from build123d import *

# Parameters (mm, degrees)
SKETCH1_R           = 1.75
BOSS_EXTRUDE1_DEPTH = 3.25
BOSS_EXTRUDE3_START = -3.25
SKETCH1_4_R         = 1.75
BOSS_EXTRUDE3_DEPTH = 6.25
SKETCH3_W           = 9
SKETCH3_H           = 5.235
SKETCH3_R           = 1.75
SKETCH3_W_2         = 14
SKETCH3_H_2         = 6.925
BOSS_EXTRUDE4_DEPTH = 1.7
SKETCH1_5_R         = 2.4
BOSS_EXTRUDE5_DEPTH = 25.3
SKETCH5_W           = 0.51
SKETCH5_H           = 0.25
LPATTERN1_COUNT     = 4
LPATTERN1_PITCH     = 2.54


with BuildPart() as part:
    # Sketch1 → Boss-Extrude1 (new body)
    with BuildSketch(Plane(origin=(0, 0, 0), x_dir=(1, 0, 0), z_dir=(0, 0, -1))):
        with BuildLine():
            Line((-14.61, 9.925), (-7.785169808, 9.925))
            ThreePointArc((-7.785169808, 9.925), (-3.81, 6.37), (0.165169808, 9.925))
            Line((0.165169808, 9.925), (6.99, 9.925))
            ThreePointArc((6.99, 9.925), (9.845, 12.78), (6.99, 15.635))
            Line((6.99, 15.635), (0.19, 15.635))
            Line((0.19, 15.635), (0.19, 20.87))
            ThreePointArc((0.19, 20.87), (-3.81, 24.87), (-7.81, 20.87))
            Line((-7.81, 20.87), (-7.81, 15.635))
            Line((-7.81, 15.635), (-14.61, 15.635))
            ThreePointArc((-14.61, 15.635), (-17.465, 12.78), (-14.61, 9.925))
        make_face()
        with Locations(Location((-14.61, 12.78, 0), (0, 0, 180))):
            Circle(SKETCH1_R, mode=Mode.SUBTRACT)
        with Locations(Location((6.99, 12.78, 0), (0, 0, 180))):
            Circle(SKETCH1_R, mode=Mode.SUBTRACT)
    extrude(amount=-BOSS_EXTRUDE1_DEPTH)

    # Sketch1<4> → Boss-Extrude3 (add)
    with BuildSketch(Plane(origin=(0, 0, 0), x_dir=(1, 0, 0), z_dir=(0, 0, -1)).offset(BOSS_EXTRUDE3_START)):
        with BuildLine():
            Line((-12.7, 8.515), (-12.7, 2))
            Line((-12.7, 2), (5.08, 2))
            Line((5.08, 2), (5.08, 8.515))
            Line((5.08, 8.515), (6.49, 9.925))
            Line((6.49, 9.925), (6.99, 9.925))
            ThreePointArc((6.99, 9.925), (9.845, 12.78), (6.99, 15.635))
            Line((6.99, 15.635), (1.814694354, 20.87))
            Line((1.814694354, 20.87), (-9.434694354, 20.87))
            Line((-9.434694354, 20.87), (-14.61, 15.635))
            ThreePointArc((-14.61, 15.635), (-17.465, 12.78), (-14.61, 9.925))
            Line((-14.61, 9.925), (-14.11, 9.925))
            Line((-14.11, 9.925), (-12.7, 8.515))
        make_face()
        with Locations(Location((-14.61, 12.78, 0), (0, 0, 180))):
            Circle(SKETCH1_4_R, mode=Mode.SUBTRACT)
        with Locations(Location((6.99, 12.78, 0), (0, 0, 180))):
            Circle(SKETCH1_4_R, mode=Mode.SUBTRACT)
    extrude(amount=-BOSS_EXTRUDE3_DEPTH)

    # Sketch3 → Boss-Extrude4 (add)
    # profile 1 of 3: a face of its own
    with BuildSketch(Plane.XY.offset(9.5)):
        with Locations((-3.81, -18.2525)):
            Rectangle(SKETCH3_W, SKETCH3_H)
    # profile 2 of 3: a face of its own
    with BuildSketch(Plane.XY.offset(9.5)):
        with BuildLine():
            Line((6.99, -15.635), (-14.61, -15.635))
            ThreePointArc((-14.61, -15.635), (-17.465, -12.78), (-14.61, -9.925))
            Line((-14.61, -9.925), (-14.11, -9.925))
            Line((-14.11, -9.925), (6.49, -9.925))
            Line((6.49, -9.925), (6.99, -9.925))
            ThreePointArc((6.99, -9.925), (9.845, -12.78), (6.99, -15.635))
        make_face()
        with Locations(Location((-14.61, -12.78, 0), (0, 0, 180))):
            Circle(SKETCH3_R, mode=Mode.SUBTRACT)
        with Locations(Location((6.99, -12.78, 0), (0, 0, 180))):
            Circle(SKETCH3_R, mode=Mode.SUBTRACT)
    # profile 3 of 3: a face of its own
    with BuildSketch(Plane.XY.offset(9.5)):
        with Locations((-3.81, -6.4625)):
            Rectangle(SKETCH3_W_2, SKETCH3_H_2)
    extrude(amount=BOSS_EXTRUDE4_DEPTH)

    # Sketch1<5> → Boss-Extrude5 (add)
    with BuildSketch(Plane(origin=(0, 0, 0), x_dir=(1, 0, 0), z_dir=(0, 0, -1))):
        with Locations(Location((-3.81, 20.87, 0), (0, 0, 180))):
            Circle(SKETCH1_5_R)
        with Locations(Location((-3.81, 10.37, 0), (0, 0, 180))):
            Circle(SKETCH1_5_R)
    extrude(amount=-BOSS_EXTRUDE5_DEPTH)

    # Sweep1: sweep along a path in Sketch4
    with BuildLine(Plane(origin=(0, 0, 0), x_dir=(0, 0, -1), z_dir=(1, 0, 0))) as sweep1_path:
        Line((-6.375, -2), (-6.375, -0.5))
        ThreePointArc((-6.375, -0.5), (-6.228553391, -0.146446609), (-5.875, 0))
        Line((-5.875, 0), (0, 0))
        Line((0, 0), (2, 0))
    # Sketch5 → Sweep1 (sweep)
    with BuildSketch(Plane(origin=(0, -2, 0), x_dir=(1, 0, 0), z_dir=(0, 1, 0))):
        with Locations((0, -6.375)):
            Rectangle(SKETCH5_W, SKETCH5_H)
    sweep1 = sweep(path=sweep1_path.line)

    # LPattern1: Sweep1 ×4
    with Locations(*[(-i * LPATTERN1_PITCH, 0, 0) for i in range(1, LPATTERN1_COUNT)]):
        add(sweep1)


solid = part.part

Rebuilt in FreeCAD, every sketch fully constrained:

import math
import FreeCAD as App
import Part
import Sketcher


def add_polygon(sketch, points):
    """Adds a closed chain of lines whose ends are joined by coincident constraints."""
    first, n = sketch.GeometryCount, len(points)
    for a, b in zip(points, points[1:] + points[:1]):
        sketch.addGeometry(Part.LineSegment(App.Vector(*a, 0), App.Vector(*b, 0)), False)
    for i in range(n):
        sketch.addConstraint(Sketcher.Constraint("Coincident", first + i, 2, first + (i + 1) % n, 1))

doc = App.newDocument("Part")
body = doc.addObject("PartDesign::Body", "Body")

# Sketch on XY plane
sketch1 = doc.addObject("Sketcher::SketchObject", "Sketch")
body.addObject(sketch1)
sketch1.AttachmentSupport = (doc.XY_Plane, [""])
sketch1.MapMode = "FlatFace"
sketch1.addGeometry([
    Part.LineSegment(App.Vector(-14.61, -9.925, 0), App.Vector(-7.78517, -9.925, 0)),  # 0
    Part.ArcOfCircle(Part.Circle(App.Vector(-3.81, -10.37, 0), App.Vector(0, 0, 1), 4), math.radians(6.387378), math.radians(173.612622)),  # 1
    Part.LineSegment(App.Vector(0.16517, -9.925, 0), App.Vector(6.99, -9.925, 0)),  # 2
    Part.ArcOfCircle(Part.Circle(App.Vector(6.99, -12.78, 0), App.Vector(0, 0, 1), 2.855), math.radians(-90), math.radians(90)),  # 3
    Part.LineSegment(App.Vector(6.99, -15.635, 0), App.Vector(0.19, -15.635, 0)),  # 4
    Part.LineSegment(App.Vector(0.19, -15.635, 0), App.Vector(0.19, -20.87, 0)),  # 5
    Part.ArcOfCircle(Part.Circle(App.Vector(-3.81, -20.87, 0), App.Vector(0, 0, 1), 4), math.radians(180), math.radians(360)),  # 6
    Part.LineSegment(App.Vector(-7.81, -20.87, 0), App.Vector(-7.81, -15.635, 0)),  # 7
    Part.LineSegment(App.Vector(-7.81, -15.635, 0), App.Vector(-14.61, -15.635, 0)),  # 8
    Part.ArcOfCircle(Part.Circle(App.Vector(-14.61, -12.78, 0), App.Vector(0, 0, 1), 2.855), math.radians(90), math.radians(270)),  # 9
    Part.Circle(App.Vector(-14.61, -12.78, 0), App.Vector(0, 0, 1), 1.75),  # 10
    Part.Circle(App.Vector(6.99, -12.78, 0), App.Vector(0, 0, 1), 1.75),  # 11
], False)
sketch1.addConstraint([
    Sketcher.Constraint("Coincident", 0, 2, 1, 2),
    Sketcher.Constraint("Coincident", 1, 1, 2, 1),
    Sketcher.Constraint("Tangent", 2, 2, 3, 2),
    Sketcher.Constraint("Tangent", 3, 1, 4, 1),
    Sketcher.Constraint("Coincident", 4, 2, 5, 1),
    Sketcher.Constraint("Tangent", 5, 2, 6, 2),
    Sketcher.Constraint("Tangent", 6, 1, 7, 1),
    Sketcher.Constraint("Coincident", 7, 2, 8, 1),
    Sketcher.Constraint("Tangent", 8, 2, 9, 2),
    Sketcher.Constraint("Tangent", 9, 1, 0, 1),
    Sketcher.Constraint("Horizontal", 0),
    Sketcher.Constraint("Horizontal", 2),
    Sketcher.Constraint("Horizontal", 4),
    Sketcher.Constraint("Vertical", 5),
    Sketcher.Constraint("Vertical", 7),
    Sketcher.Constraint("Horizontal", 8),
    Sketcher.Constraint("Coincident", 10, 3, 9, 3),
    Sketcher.Constraint("Coincident", 11, 3, 3, 3),
    Sketcher.Constraint("Equal", 1, 6),
    Sketcher.Constraint("Equal", 3, 9),
    Sketcher.Constraint("Equal", 10, 11),
    Sketcher.Constraint("Horizontal", 3, 3, 9, 3),
    Sketcher.Constraint("Vertical", 1, 3, 6, 3),
    Sketcher.Constraint("Equal", 0, 2),
    Sketcher.Constraint("Radius", 1, 4.0),
    Sketcher.Constraint("Diameter", 10, 3.5),
    Sketcher.Constraint("DistanceX", 4, 2, 4, 1, 6.8),
    Sketcher.Constraint("Radius", 3, 2.855),
    Sketcher.Constraint("DistanceY", 6, 3, 1, 3, 10.5),
    Sketcher.Constraint("DistanceY", 5, 2, 5, 1, 5.235),
    Sketcher.Constraint("DistanceX", 1, 3, -1, 1, 3.81),
    Sketcher.Constraint("DistanceY", 1, 3, -1, 1, 10.37),
])
pad1 = doc.addObject("PartDesign::Pad", "Pad")
body.addObject(pad1)
pad1.Profile = sketch1
pad1.Length = 3.25

# Sketch on XY plane
sketch2 = doc.addObject("Sketcher::SketchObject", "Sketch001")
body.addObject(sketch2)
sketch2.AttachmentSupport = (doc.XY_Plane, [""])
sketch2.MapMode = "FlatFace"
sketch2.AttachmentOffset = App.Placement(App.Vector(0, 0, 3.25), App.Rotation())
sketch2.addGeometry([
    Part.LineSegment(App.Vector(-12.7, -8.515, 0), App.Vector(-12.7, -2, 0)),  # 0
    Part.LineSegment(App.Vector(-12.7, -2, 0), App.Vector(5.08, -2, 0)),  # 1
    Part.LineSegment(App.Vector(5.08, -2, 0), App.Vector(5.08, -8.515, 0)),  # 2
    Part.LineSegment(App.Vector(5.08, -8.515, 0), App.Vector(6.49, -9.925, 0)),  # 3
    Part.LineSegment(App.Vector(6.49, -9.925, 0), App.Vector(6.99, -9.925, 0)),  # 4
    Part.ArcOfCircle(Part.Circle(App.Vector(6.99, -12.78, 0), App.Vector(0, 0, 1), 2.855), math.radians(-90), math.radians(90)),  # 5
    Part.LineSegment(App.Vector(6.99, -15.635, 0), App.Vector(1.814694, -20.87, 0)),  # 6
    Part.LineSegment(App.Vector(1.814694, -20.87, 0), App.Vector(-9.434694, -20.87, 0)),  # 7
    Part.LineSegment(App.Vector(-9.434694, -20.87, 0), App.Vector(-14.61, -15.635, 0)),  # 8
    Part.ArcOfCircle(Part.Circle(App.Vector(-14.61, -12.78, 0), App.Vector(0, 0, 1), 2.855), math.radians(90), math.radians(270)),  # 9
    Part.LineSegment(App.Vector(-14.61, -9.925, 0), App.Vector(-14.11, -9.925, 0)),  # 10
    Part.LineSegment(App.Vector(-14.11, -9.925, 0), App.Vector(-12.7, -8.515, 0)),  # 11
    Part.Circle(App.Vector(-14.61, -12.78, 0), App.Vector(0, 0, 1), 1.75),  # 12
    Part.Circle(App.Vector(6.99, -12.78, 0), App.Vector(0, 0, 1), 1.75),  # 13
], False)
sketch2.addConstraint([
    Sketcher.Constraint("Coincident", 0, 2, 1, 1),
    Sketcher.Constraint("Coincident", 1, 2, 2, 1),
    Sketcher.Constraint("Coincident", 2, 2, 3, 1),
    Sketcher.Constraint("Coincident", 3, 2, 4, 1),
    Sketcher.Constraint("Tangent", 4, 2, 5, 2),
    Sketcher.Constraint("Coincident", 5, 1, 6, 1),
    Sketcher.Constraint("Coincident", 6, 2, 7, 1),
    Sketcher.Constraint("Coincident", 7, 2, 8, 1),
    Sketcher.Constraint("Coincident", 8, 2, 9, 2),
    Sketcher.Constraint("Tangent", 9, 1, 10, 1),
    Sketcher.Constraint("Coincident", 10, 2, 11, 1),
    Sketcher.Constraint("Coincident", 11, 2, 0, 1),
    Sketcher.Constraint("Vertical", 0),
    Sketcher.Constraint("Horizontal", 1),
    Sketcher.Constraint("Vertical", 2),
    Sketcher.Constraint("Horizontal", 4),
    Sketcher.Constraint("Horizontal", 7),
    Sketcher.Constraint("Horizontal", 10),
    Sketcher.Constraint("Coincident", 12, 3, 9, 3),
    Sketcher.Constraint("Coincident", 13, 3, 5, 3),
    Sketcher.Constraint("Equal", 5, 9),
    Sketcher.Constraint("Equal", 12, 13),
    Sketcher.Constraint("Perpendicular", 3, 11),
    Sketcher.Constraint("Horizontal", 5, 3, 9, 3),
    Sketcher.Constraint("Horizontal", 2, 2, 11, 2),
    Sketcher.Constraint("Vertical", 4, 2, 5, 1),
    Sketcher.Constraint("Vertical", 12, 3, 8, 2),
    Sketcher.Constraint("Equal", 4, 10),
    Sketcher.Constraint("Equal", 6, 8),
    Sketcher.Constraint("Equal", 3, 11),
    Sketcher.Constraint("Diameter", 12, 3.5),
    Sketcher.Constraint("DistanceX", 4, 1, 4, 2, 0.5),
    Sketcher.Constraint("DistanceY", 0, 2, -1, 1, 2.0),
    Sketcher.Constraint("Radius", 5, 2.855),
    Sketcher.Constraint("DistanceX", 1, 1, 1, 2, 17.78),
    Sketcher.Constraint("DistanceX", 0, 2, -1, 1, 12.7),
    Sketcher.Constraint("DistanceX", 9, 3, 5, 3, 21.6),
    Sketcher.Constraint("DistanceY", 0, 1, 0, 2, 6.515),
    Sketcher.Constraint("DistanceY", 6, 2, -1, 1, 20.87),
    Sketcher.Constraint("DistanceX", 7, 2, 7, 1, 11.249389),
])
pad2 = doc.addObject("PartDesign::Pad", "Pad001")
body.addObject(pad2)
pad2.Profile = sketch2
pad2.Length = 6.25

# Sketch on XY plane
sketch3 = doc.addObject("Sketcher::SketchObject", "Sketch002")
body.addObject(sketch3)
sketch3.AttachmentSupport = (doc.XY_Plane, [""])
sketch3.MapMode = "FlatFace"
sketch3.AttachmentOffset = App.Placement(App.Vector(0, 0, 9.5), App.Rotation())
sketch3.addGeometry([
    Part.LineSegment(App.Vector(-8.31, -15.635, 0), App.Vector(-8.31, -20.87, 0)),  # 0
    Part.LineSegment(App.Vector(-8.31, -20.87, 0), App.Vector(0.69, -20.87, 0)),  # 1
    Part.LineSegment(App.Vector(0.69, -20.87, 0), App.Vector(0.69, -15.635, 0)),  # 2
    Part.LineSegment(App.Vector(0.69, -15.635, 0), App.Vector(6.99, -15.635, 0)),  # 3
    Part.ArcOfCircle(Part.Circle(App.Vector(6.99, -12.78, 0), App.Vector(0, 0, 1), 2.855), math.radians(-90), math.radians(90)),  # 4
    Part.LineSegment(App.Vector(6.99, -9.925, 0), App.Vector(3.19, -9.925, 0)),  # 5
    Part.LineSegment(App.Vector(3.19, -9.925, 0), App.Vector(3.19, -3, 0)),  # 6
    Part.LineSegment(App.Vector(3.19, -3, 0), App.Vector(-10.81, -3, 0)),  # 7
    Part.LineSegment(App.Vector(-10.81, -3, 0), App.Vector(-10.81, -9.925, 0)),  # 8
    Part.LineSegment(App.Vector(-10.81, -9.925, 0), App.Vector(-14.61, -9.925, 0)),  # 9
    Part.ArcOfCircle(Part.Circle(App.Vector(-14.61, -12.78, 0), App.Vector(0, 0, 1), 2.855), math.radians(90), math.radians(270)),  # 10
    Part.LineSegment(App.Vector(-14.61, -15.635, 0), App.Vector(-8.31, -15.635, 0)),  # 11
    Part.Circle(App.Vector(-14.61, -12.78, 0), App.Vector(0, 0, 1), 1.75),  # 12
    Part.Circle(App.Vector(6.99, -12.78, 0), App.Vector(0, 0, 1), 1.75),  # 13
], False)
sketch3.addConstraint([
    Sketcher.Constraint("Coincident", 0, 2, 1, 1),
    Sketcher.Constraint("Coincident", 1, 2, 2, 1),
    Sketcher.Constraint("Coincident", 2, 2, 3, 1),
    Sketcher.Constraint("Tangent", 3, 2, 4, 1),
    Sketcher.Constraint("Tangent", 4, 2, 5, 1),
    Sketcher.Constraint("Coincident", 5, 2, 6, 1),
    Sketcher.Constraint("Coincident", 6, 2, 7, 1),
    Sketcher.Constraint("Coincident", 7, 2, 8, 1),
    Sketcher.Constraint("Coincident", 8, 2, 9, 1),
    Sketcher.Constraint("Tangent", 9, 2, 10, 1),
    Sketcher.Constraint("Tangent", 10, 2, 11, 1),
    Sketcher.Constraint("Coincident", 11, 2, 0, 1),
    Sketcher.Constraint("Vertical", 0),
    Sketcher.Constraint("Horizontal", 1),
    Sketcher.Constraint("Vertical", 2),
    Sketcher.Constraint("Horizontal", 3),
    Sketcher.Constraint("Horizontal", 5),
    Sketcher.Constraint("Vertical", 6),
    Sketcher.Constraint("Horizontal", 7),
    Sketcher.Constraint("Vertical", 8),
    Sketcher.Constraint("Horizontal", 9),
    Sketcher.Constraint("Horizontal", 11),
    Sketcher.Constraint("Coincident", 12, 3, 10, 3),
    Sketcher.Constraint("Coincident", 13, 3, 4, 3),
    Sketcher.Constraint("Equal", 4, 10),
    Sketcher.Constraint("Equal", 12, 13),
    Sketcher.Constraint("Horizontal", 4, 3, 10, 3),
    Sketcher.Constraint("Equal", 5, 9),
    Sketcher.Constraint("Equal", 3, 11),
    Sketcher.Constraint("Diameter", 12, 3.5),
    Sketcher.Constraint("DistanceX", 1, 1, 1, 2, 9.0),
    Sketcher.Constraint("DistanceX", 7, 2, 7, 1, 14.0),
    Sketcher.Constraint("DistanceX", 3, 1, 3, 2, 6.3),
    Sketcher.Constraint("DistanceY", 6, 2, -1, 1, 3.0),
    Sketcher.Constraint("Radius", 4, 2.855),
    Sketcher.Constraint("DistanceY", 0, 2, 0, 1, 5.235),
    Sketcher.Constraint("DistanceY", 6, 1, 6, 2, 6.925),
    Sketcher.Constraint("DistanceX", -1, 1, 4, 3, 6.99),
])
pad3 = doc.addObject("PartDesign::Pad", "Pad002")
body.addObject(pad3)
pad3.Profile = sketch3
pad3.Length = 1.7

# Sketch on XY plane
sketch4 = doc.addObject("Sketcher::SketchObject", "Sketch003")
body.addObject(sketch4)
sketch4.AttachmentSupport = (doc.XY_Plane, [""])
sketch4.MapMode = "FlatFace"
sketch4.addGeometry([
    Part.Circle(App.Vector(-3.81, -20.87, 0), App.Vector(0, 0, 1), 2.4),
    Part.Circle(App.Vector(-3.81, -10.37, 0), App.Vector(0, 0, 1), 2.4),
], False)
sketch4.addConstraint([
    Sketcher.Constraint("Equal", 0, 1),
    Sketcher.Constraint("Vertical", 0, 3, 1, 3),
    Sketcher.Constraint("Diameter", 0, 4.8),
    Sketcher.Constraint("DistanceY", 0, 3, 1, 3, 10.5),
    Sketcher.Constraint("DistanceX", 0, 3, -1, 1, 3.81),
    Sketcher.Constraint("DistanceY", 0, 3, -1, 1, 20.87),
])
pad4 = doc.addObject("PartDesign::Pad", "Pad003")
body.addObject(pad4)
pad4.Profile = sketch4
pad4.Length = 25.3

# Sketch on XZ plane
sketch5 = doc.addObject("Sketcher::SketchObject", "Sketch004")
body.addObject(sketch5)
sketch5.AttachmentSupport = (doc.XZ_Plane, [""])
sketch5.MapMode = "FlatFace"
sketch5.AttachmentOffset = App.Placement(App.Vector(0, 0, 2), App.Rotation())
add_polygon(sketch5, [(-0.255, 6.25), (-0.255, 6.5), (0.255, 6.5), (0.255, 6.25)])  # lines 0-3
sketch5.addConstraint([
    Sketcher.Constraint("Vertical", 0),
    Sketcher.Constraint("Horizontal", 1),
    Sketcher.Constraint("Vertical", 2),
    Sketcher.Constraint("Horizontal", 3),
    Sketcher.Constraint("DistanceX", 1, 1, 1, 2, 0.51),
    Sketcher.Constraint("DistanceY", 0, 1, 0, 2, 0.25),
    Sketcher.Constraint("DistanceY", -1, 1, 0, 2, 6.5),
    Sketcher.Constraint("DistanceX", 0, 2, -1, 1, 0.255),
])

# Sketch on YZ plane
sketch6 = doc.addObject("Sketcher::SketchObject", "Sketch005")
body.addObject(sketch6)
sketch6.AttachmentSupport = (doc.YZ_Plane, [""])
sketch6.MapMode = "FlatFace"
sketch6.addGeometry([
    Part.LineSegment(App.Vector(-2, 6.375, 0), App.Vector(-0.5, 6.375, 0)),
    Part.ArcOfCircle(Part.Circle(App.Vector(-0.5, 5.875, 0), App.Vector(0, 0, 1), 0.5), math.radians(0), math.radians(90)),
    Part.LineSegment(App.Vector(0, 5.875, 0), App.Vector(0, -2, 0)),
], False)
sketch6.addConstraint([
    Sketcher.Constraint("Tangent", 0, 2, 1, 2),
    Sketcher.Constraint("Tangent", 1, 1, 2, 1),
    Sketcher.Constraint("Horizontal", 0),
    Sketcher.Constraint("Vertical", 2),
    Sketcher.Constraint("PointOnObject", 1, 1, -2),
    Sketcher.Constraint("Radius", 1, 0.5),
    Sketcher.Constraint("DistanceX", 0, 1, 0, 2, 1.5),
    Sketcher.Constraint("DistanceY", 2, 2, -1, 1, 2.0),
    Sketcher.Constraint("DistanceY", 2, 2, 2, 1, 7.875),
])
doc.recompute()

additivepipe = doc.addObject("PartDesign::AdditivePipe", "AdditivePipe")
body.addObject(additivepipe)
additivepipe.Profile = sketch5
additivepipe.Spine = (sketch6, ["Edge1", "Edge2", "Edge3"])
doc.recompute()

linearpattern = doc.addObject("PartDesign::LinearPattern", "LinearPattern")
body.addObject(linearpattern)
linearpattern.Originals = [additivepipe]
linearpattern.Direction = (doc.X_Axis, [""])
linearpattern.Mode = "offset"
linearpattern.Offset = 2.54
linearpattern.Occurrences = 4
linearpattern.Reversed = True
body.Tip = linearpattern

doc.recompute()
